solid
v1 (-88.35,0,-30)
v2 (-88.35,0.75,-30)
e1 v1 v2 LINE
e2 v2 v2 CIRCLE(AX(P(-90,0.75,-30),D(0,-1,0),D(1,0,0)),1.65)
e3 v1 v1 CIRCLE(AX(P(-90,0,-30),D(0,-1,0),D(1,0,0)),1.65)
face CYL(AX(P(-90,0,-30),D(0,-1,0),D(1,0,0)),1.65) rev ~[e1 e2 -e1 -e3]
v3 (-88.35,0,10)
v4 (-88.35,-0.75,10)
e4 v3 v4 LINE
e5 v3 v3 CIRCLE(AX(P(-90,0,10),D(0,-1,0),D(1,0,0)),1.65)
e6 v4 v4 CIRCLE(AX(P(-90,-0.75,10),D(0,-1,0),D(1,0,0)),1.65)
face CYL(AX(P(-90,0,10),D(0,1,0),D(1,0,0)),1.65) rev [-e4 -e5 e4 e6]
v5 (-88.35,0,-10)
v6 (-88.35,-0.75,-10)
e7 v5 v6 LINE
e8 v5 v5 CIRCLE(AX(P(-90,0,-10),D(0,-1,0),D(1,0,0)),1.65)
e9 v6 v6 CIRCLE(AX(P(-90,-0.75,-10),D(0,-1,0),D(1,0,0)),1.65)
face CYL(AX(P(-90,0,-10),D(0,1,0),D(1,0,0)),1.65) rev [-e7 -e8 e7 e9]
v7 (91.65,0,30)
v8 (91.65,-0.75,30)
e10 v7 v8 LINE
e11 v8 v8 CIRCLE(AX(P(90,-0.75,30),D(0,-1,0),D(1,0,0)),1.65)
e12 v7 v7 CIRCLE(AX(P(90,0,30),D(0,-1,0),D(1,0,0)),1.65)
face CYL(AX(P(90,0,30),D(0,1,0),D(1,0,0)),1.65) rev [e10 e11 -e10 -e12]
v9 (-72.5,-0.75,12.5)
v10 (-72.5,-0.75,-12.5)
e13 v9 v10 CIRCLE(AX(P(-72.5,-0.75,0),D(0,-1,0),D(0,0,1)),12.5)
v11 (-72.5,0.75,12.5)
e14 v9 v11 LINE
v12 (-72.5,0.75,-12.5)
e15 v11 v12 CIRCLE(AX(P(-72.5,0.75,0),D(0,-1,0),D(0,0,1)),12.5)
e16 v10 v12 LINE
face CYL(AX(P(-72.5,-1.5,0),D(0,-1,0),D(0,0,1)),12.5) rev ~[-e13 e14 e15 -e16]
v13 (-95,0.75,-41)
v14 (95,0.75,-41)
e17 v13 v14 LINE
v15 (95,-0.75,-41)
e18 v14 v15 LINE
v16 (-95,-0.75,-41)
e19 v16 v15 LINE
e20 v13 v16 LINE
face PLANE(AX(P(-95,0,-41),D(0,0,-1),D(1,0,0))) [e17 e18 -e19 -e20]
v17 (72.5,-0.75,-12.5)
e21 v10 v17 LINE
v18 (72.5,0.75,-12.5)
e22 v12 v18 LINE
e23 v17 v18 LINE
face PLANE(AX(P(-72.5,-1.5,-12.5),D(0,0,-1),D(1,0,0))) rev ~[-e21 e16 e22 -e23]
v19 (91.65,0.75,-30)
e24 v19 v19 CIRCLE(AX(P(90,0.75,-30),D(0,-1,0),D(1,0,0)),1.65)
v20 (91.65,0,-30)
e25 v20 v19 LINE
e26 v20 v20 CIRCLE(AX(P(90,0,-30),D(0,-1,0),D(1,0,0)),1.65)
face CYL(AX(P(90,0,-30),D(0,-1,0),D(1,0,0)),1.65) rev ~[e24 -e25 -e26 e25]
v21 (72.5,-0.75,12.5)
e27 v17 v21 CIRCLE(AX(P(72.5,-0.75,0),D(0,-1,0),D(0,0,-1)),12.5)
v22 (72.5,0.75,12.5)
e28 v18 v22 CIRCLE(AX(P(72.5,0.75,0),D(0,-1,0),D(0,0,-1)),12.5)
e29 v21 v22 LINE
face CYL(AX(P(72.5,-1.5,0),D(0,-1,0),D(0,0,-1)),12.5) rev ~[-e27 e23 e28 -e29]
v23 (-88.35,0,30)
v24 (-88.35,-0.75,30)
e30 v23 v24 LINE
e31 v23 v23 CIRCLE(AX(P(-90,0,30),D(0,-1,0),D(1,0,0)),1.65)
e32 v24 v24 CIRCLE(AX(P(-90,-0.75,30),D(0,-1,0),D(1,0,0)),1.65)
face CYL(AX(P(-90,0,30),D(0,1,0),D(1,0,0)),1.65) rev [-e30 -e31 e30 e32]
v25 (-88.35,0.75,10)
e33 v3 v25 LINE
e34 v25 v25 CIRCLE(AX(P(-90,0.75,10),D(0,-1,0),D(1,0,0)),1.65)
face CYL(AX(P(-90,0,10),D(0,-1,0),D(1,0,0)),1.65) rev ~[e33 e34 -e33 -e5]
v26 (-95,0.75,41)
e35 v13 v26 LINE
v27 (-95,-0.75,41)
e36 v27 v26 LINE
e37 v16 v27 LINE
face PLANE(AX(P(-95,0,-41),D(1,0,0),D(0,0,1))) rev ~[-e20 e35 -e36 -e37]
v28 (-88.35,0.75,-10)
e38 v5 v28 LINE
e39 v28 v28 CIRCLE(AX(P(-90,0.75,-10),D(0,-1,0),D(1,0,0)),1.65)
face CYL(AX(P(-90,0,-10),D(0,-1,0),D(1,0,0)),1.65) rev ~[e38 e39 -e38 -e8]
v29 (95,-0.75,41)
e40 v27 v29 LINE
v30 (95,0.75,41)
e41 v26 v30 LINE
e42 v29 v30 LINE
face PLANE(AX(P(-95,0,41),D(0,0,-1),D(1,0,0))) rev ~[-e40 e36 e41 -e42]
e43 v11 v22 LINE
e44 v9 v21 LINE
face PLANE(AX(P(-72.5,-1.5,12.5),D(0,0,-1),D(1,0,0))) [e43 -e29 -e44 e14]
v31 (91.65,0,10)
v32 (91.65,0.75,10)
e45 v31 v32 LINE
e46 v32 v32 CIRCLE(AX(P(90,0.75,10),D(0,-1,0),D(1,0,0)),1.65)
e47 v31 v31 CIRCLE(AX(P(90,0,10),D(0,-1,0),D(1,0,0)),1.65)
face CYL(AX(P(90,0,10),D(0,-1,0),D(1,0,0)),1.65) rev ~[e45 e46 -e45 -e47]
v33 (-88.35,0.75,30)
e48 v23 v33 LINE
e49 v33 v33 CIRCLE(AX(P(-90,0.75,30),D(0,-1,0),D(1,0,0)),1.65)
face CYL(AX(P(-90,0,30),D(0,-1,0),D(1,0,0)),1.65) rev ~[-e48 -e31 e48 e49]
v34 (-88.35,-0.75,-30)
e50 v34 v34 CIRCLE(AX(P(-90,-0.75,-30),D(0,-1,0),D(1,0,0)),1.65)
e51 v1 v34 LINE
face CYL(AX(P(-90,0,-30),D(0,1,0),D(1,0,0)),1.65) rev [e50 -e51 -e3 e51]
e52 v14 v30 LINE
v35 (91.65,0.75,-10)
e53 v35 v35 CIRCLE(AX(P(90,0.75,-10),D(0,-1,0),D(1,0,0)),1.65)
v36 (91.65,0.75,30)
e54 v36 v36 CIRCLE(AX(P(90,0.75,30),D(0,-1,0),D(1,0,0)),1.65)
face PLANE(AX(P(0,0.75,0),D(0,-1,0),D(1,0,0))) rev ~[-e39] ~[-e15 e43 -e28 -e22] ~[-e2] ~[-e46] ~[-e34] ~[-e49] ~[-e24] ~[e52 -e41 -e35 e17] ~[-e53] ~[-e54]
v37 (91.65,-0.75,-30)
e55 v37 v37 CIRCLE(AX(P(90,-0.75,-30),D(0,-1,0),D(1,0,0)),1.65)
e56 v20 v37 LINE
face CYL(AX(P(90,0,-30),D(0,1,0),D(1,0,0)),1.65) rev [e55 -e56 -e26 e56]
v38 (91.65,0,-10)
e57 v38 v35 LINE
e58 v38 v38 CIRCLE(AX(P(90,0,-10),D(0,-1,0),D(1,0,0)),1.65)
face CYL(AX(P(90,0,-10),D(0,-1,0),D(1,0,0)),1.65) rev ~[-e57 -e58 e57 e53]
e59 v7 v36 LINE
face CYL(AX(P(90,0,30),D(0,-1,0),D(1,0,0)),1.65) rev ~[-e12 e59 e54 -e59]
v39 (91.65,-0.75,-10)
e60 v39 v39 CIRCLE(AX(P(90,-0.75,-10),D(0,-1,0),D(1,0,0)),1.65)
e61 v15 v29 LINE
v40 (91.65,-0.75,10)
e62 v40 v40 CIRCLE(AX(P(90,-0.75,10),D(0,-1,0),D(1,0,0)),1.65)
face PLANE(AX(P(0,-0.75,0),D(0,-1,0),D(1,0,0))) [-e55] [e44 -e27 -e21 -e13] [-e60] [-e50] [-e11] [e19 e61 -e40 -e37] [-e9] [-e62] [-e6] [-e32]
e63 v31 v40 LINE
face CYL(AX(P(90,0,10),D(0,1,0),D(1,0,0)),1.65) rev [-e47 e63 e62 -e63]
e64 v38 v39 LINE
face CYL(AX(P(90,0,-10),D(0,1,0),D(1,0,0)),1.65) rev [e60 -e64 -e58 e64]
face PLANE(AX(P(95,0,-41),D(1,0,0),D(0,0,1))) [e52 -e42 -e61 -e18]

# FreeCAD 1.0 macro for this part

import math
import FreeCAD as App
import Part
import Sketcher

V = App.Vector
Q = App.Units.Quantity


def add_polygon(sketch, points):
    """Adds a closed chain of lines whose ends are joined by coincident constraints."""
    first, n = sketch.GeometryCount, len(points)
    for a, b in zip(points, points[1:] + points[:1]):
        sketch.addGeometry(Part.LineSegment(App.Vector(*a, 0), App.Vector(*b, 0)), False)
    for i in range(n):
        sketch.addConstraint(Sketcher.Constraint("Coincident", first + i, 2, first + (i + 1) % n, 1))

doc = App.newDocument("Part")
params = doc.addObject("Spreadsheet::Sheet", "Params")
for row, (alias, value) in enumerate([
    ("sketch1_diameter", "3.3 mm"),
    ("sketch1_width", "190 mm"),
    ("sketch1_height", "82 mm"),
    ("pad1_length", "0.75 mm"),
    ("pad1_length2", "0.75 mm"),
    ("sketch2_radius", "12.5 mm"),
    ("sketch2_width", "145 mm"),
], start=1):
    params.set(f"A{row}", alias)
    params.set(f"B{row}", "=" + value)
    params.setAlias(f"B{row}", alias)

body = doc.addObject("PartDesign::Body", "Body")

# Sketch on XZ plane
sketch1 = doc.addObject("Sketcher::SketchObject", "Sketch")
body.addObject(sketch1)
sketch1.AttachmentSupport = (doc.XZ_Plane, [""])
sketch1.MapMode = "FlatFace"
add_polygon(sketch1, [(-95, 41), (-95, -41), (95, -41), (95, 41)])  # lines 0-3
sketch1.addGeometry(Part.Circle(V(-90, -30, 0), V(0, 0, 1), 1.6), False)  # 4
sketch1.addGeometry(Part.Circle(V(-90, -10, 0), V(0, 0, 1), 1.6), False)  # 5
sketch1.addGeometry(Part.Circle(V(90, -30, 0), V(0, 0, 1), 1.6), False)  # 6
sketch1.addGeometry(Part.Circle(V(90, -10, 0), V(0, 0, 1), 1.6), False)  # 7
sketch1.addGeometry(Part.Circle(V(-90, 10, 0), V(0, 0, 1), 1.6), False)  # 8
sketch1.addGeometry(Part.Circle(V(-90, 30, 0), V(0, 0, 1), 1.6), False)  # 9
sketch1.addGeometry(Part.Circle(V(90, 10, 0), V(0, 0, 1), 1.6), False)  # 10
sketch1.addGeometry(Part.Circle(V(90, 30, 0), V(0, 0, 1), 1.6), False)  # 11
sketch1.addConstraint(Sketcher.Constraint("Vertical", 0))
sketch1.addConstraint(Sketcher.Constraint("Horizontal", 1))
sketch1.addConstraint(Sketcher.Constraint("Vertical", 2))
sketch1.addConstraint(Sketcher.Constraint("Horizontal", 3))
sketch1.addConstraint(Sketcher.Constraint("Equal", 4, 5))
sketch1.addConstraint(Sketcher.Constraint("Equal", 5, 6))
sketch1.addConstraint(Sketcher.Constraint("Equal", 6, 7))
sketch1.addConstraint(Sketcher.Constraint("Equal", 7, 8))
sketch1.addConstraint(Sketcher.Constraint("Equal", 8, 9))
sketch1.addConstraint(Sketcher.Constraint("Equal", 9, 10))
sketch1.addConstraint(Sketcher.Constraint("Equal", 10, 11))
sketch1.addConstraint(Sketcher.Constraint("Symmetric", 7, 3, 8, 3, -1, 1))
sketch1.addConstraint(Sketcher.Constraint("Symmetric", 6, 3, 9, 3, -1, 1))
sketch1.addConstraint(Sketcher.Constraint("Symmetric", 5, 3, 10, 3, -1, 1))
sketch1.addConstraint(Sketcher.Constraint("Symmetric", 4, 3, 11, 3, -1, 1))
sketch1.addConstraint(Sketcher.Constraint("Symmetric", 0, 2, 2, 2, -1, 1))
sketch1.addConstraint(Sketcher.Constraint("Symmetric", 4, 3, 6, 3, -2))
sketch1.addConstraint(Sketcher.Constraint("Symmetric", 5, 3, 7, 3, -2))
sketch1.addConstraint(Sketcher.Constraint("Vertical", 4, 3, 5, 3))
sketch1.addConstraint(Sketcher.Constraint("Diameter", 4, Q("3.3 mm")))
sketch1.addConstraint(Sketcher.Constraint("DistanceX", 1, 1, 1, 2, Q("190 mm")))
sketch1.addConstraint(Sketcher.Constraint("DistanceY", 0, 2, 0, 1, Q("82 mm")))
sketch1.addConstraint(Sketcher.Constraint("DistanceX", 4, 3, -1, 1, Q("90 mm")))
sketch1.addConstraint(Sketcher.Constraint("DistanceY", 4, 3, -1, 1, Q("30 mm")))
sketch1.addConstraint(Sketcher.Constraint("DistanceY", 5, 3, -1, 1, Q("10 mm")))
sketch1.setExpression("Constraints[23]", "Params.sketch1_diameter")
sketch1.setExpression("Constraints[24]", "Params.sketch1_width")
sketch1.setExpression("Constraints[25]", "Params.sketch1_height")
pad1 = doc.addObject("PartDesign::Pad", "Pad")
body.addObject(pad1)
pad1.Profile = sketch1
pad1.Type = "TwoLengths"
pad1.setExpression("Length", "Params.pad1_length")
pad1.setExpression("Length2", "Params.pad1_length2")

# Sketch on XZ plane
sketch2 = doc.addObject("Sketcher::SketchObject", "Sketch001")
body.addObject(sketch2)
sketch2.AttachmentSupport = (doc.XZ_Plane, [""])
sketch2.MapMode = "FlatFace"
sketch2.AttachmentOffset = App.Placement(V(0, 0, 1.5), App.Rotation())
sketch2.addGeometry(Part.ArcOfCircle(Part.Circle(V(-72, 0, 0), V(0, 0, 1), 12), math.radians(90), math.radians(270)), False)
sketch2.addGeometry(Part.LineSegment(V(-72, -12, 0), V(72, -12, 0)), False)
sketch2.addGeometry(Part.ArcOfCircle(Part.Circle(V(72, 0, 0), V(0, 0, 1), 12), math.radians(-90), math.radians(90)), False)
sketch2.addGeometry(Part.LineSegment(V(72, 12, 0), V(-72, 12, 0)), False)
sketch2.addConstraint(Sketcher.Constraint("Tangent", 0, 2, 1, 1))
sketch2.addConstraint(Sketcher.Constraint("Tangent", 1, 2, 2, 1))
sketch2.addConstraint(Sketcher.Constraint("Tangent", 2, 2, 3, 1))
sketch2.addConstraint(Sketcher.Constraint("Tangent", 3, 2, 0, 1))
sketch2.addConstraint(Sketcher.Constraint("Horizontal", 1))
sketch2.addConstraint(Sketcher.Constraint("Horizontal", 3))
sketch2.addConstraint(Sketcher.Constraint("Symmetric", 0, 3, 2, 3, -1, 1))
sketch2.addConstraint(Sketcher.Constraint("Radius", 0, Q("12.5 mm")))
sketch2.addConstraint(Sketcher.Constraint("DistanceX", 1, 1, 1, 2, Q("145 mm")))
sketch2.setExpression("Constraints[7]", "Params.sketch2_radius")
sketch2.setExpression("Constraints[8]", "Params.sketch2_width")
pocket1 = doc.addObject("PartDesign::Pocket", "Pocket")
body.addObject(pocket1)
pocket1.Profile = sketch2
pocket1.Type = "ThroughAll"

doc.recompute()
